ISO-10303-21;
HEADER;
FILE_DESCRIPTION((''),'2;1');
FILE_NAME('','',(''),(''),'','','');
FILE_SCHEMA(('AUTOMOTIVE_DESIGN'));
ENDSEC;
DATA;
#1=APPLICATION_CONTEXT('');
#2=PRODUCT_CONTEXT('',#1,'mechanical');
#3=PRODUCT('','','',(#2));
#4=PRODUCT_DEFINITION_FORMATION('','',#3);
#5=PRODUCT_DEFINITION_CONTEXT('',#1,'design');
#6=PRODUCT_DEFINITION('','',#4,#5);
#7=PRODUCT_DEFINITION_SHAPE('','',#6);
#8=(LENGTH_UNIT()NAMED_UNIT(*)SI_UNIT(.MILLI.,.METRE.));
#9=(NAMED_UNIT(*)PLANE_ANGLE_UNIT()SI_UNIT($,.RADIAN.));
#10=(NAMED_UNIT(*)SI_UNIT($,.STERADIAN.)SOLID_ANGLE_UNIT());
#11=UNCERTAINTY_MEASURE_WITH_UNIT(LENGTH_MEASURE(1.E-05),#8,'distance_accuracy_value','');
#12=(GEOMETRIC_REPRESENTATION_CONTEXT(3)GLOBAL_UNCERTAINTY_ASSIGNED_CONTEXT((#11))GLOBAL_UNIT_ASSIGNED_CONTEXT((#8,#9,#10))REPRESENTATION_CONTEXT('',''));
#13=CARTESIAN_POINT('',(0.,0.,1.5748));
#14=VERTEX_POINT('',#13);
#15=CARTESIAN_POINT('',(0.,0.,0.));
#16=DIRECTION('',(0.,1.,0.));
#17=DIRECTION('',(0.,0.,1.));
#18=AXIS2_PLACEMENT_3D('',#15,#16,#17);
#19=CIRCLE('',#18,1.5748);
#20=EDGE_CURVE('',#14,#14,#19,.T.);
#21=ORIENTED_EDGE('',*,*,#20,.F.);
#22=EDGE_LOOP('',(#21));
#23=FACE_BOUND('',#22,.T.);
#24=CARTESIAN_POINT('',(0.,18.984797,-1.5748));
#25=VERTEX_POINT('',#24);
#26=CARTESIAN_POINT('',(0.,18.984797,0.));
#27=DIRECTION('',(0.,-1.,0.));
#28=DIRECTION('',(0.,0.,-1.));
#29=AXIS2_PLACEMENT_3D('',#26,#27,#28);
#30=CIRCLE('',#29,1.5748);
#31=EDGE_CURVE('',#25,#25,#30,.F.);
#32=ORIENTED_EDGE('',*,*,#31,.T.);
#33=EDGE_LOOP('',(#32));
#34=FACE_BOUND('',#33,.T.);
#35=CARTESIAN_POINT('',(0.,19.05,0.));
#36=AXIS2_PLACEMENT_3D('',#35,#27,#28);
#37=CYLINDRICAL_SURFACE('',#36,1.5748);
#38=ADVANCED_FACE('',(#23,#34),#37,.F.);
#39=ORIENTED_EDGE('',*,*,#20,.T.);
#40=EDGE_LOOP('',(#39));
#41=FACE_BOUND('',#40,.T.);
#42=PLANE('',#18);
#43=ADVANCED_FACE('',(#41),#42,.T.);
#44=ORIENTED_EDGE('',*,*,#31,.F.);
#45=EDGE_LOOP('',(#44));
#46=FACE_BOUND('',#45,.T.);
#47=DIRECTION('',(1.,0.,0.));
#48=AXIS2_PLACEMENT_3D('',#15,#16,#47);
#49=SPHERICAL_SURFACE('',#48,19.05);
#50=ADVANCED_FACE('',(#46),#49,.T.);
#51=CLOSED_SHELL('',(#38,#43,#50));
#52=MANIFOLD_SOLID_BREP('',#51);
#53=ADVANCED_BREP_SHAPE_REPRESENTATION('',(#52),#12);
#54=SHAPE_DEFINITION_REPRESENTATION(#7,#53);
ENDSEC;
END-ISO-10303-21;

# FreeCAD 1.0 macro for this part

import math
import FreeCAD as App
import Part
import Sketcher
Q = App.Units.Quantity

doc = App.newDocument("Part")
body = doc.addObject("PartDesign::Body", "Body")

# Sketch on XY plane
sketch1 = doc.addObject("Sketcher::SketchObject", "Sketch")
body.addObject(sketch1)
sketch1.AttachmentSupport = (doc.XY_Plane, [""])
sketch1.MapMode = "FlatFace"
sketch1.addGeometry(Part.LineSegment(App.Vector(0, 19.05, 0), App.Vector(0, -19.05, 0)), False)
sketch1.addGeometry(Part.ArcOfCircle(Part.Circle(App.Vector(0, 0, 0), App.Vector(0, 0, 1), 19.05), math.radians(-90), math.radians(90)), False)
sketch1.addConstraint(Sketcher.Constraint("Coincident", 0, 1, 1, 2))
sketch1.addConstraint(Sketcher.Constraint("Coincident", 1, 1, 0, 2))
sketch1.addConstraint(Sketcher.Constraint("Vertical", 0))
sketch1.addConstraint(Sketcher.Constraint("Coincident", 1, 3, -1, 1))
sketch1.addConstraint(Sketcher.Constraint("PointOnObject", 0, 1, -2))
sketch1.addConstraint(Sketcher.Constraint("Radius", 1, Q("0.75 in")))
revolution = doc.addObject("PartDesign::Revolution", "Revolution")
body.addObject(revolution)
revolution.Profile = sketch1
revolution.ReferenceAxis = (sketch1, ["V_Axis"])
revolution.Angle = 360

# Sketch on XZ plane
sketch2 = doc.addObject("Sketcher::SketchObject", "Sketch001")
body.addObject(sketch2)
sketch2.AttachmentSupport = (doc.XZ_Plane, [""])
sketch2.MapMode = "FlatFace"
sketch2.addGeometry(Part.Circle(App.Vector(0, 0, 0), App.Vector(0, 0, 1), 1.5748), False)
sketch2.addConstraint(Sketcher.Constraint("Coincident", 0, 3, -1, 1))
sketch2.addConstraint(Sketcher.Constraint("Diameter", 0, Q("0.124 in")))
pocket1 = doc.addObject("PartDesign::Pocket", "Pocket")
body.addObject(pocket1)
pocket1.Profile = sketch2
pocket1.Type = "ThroughAll"

doc.recompute()
